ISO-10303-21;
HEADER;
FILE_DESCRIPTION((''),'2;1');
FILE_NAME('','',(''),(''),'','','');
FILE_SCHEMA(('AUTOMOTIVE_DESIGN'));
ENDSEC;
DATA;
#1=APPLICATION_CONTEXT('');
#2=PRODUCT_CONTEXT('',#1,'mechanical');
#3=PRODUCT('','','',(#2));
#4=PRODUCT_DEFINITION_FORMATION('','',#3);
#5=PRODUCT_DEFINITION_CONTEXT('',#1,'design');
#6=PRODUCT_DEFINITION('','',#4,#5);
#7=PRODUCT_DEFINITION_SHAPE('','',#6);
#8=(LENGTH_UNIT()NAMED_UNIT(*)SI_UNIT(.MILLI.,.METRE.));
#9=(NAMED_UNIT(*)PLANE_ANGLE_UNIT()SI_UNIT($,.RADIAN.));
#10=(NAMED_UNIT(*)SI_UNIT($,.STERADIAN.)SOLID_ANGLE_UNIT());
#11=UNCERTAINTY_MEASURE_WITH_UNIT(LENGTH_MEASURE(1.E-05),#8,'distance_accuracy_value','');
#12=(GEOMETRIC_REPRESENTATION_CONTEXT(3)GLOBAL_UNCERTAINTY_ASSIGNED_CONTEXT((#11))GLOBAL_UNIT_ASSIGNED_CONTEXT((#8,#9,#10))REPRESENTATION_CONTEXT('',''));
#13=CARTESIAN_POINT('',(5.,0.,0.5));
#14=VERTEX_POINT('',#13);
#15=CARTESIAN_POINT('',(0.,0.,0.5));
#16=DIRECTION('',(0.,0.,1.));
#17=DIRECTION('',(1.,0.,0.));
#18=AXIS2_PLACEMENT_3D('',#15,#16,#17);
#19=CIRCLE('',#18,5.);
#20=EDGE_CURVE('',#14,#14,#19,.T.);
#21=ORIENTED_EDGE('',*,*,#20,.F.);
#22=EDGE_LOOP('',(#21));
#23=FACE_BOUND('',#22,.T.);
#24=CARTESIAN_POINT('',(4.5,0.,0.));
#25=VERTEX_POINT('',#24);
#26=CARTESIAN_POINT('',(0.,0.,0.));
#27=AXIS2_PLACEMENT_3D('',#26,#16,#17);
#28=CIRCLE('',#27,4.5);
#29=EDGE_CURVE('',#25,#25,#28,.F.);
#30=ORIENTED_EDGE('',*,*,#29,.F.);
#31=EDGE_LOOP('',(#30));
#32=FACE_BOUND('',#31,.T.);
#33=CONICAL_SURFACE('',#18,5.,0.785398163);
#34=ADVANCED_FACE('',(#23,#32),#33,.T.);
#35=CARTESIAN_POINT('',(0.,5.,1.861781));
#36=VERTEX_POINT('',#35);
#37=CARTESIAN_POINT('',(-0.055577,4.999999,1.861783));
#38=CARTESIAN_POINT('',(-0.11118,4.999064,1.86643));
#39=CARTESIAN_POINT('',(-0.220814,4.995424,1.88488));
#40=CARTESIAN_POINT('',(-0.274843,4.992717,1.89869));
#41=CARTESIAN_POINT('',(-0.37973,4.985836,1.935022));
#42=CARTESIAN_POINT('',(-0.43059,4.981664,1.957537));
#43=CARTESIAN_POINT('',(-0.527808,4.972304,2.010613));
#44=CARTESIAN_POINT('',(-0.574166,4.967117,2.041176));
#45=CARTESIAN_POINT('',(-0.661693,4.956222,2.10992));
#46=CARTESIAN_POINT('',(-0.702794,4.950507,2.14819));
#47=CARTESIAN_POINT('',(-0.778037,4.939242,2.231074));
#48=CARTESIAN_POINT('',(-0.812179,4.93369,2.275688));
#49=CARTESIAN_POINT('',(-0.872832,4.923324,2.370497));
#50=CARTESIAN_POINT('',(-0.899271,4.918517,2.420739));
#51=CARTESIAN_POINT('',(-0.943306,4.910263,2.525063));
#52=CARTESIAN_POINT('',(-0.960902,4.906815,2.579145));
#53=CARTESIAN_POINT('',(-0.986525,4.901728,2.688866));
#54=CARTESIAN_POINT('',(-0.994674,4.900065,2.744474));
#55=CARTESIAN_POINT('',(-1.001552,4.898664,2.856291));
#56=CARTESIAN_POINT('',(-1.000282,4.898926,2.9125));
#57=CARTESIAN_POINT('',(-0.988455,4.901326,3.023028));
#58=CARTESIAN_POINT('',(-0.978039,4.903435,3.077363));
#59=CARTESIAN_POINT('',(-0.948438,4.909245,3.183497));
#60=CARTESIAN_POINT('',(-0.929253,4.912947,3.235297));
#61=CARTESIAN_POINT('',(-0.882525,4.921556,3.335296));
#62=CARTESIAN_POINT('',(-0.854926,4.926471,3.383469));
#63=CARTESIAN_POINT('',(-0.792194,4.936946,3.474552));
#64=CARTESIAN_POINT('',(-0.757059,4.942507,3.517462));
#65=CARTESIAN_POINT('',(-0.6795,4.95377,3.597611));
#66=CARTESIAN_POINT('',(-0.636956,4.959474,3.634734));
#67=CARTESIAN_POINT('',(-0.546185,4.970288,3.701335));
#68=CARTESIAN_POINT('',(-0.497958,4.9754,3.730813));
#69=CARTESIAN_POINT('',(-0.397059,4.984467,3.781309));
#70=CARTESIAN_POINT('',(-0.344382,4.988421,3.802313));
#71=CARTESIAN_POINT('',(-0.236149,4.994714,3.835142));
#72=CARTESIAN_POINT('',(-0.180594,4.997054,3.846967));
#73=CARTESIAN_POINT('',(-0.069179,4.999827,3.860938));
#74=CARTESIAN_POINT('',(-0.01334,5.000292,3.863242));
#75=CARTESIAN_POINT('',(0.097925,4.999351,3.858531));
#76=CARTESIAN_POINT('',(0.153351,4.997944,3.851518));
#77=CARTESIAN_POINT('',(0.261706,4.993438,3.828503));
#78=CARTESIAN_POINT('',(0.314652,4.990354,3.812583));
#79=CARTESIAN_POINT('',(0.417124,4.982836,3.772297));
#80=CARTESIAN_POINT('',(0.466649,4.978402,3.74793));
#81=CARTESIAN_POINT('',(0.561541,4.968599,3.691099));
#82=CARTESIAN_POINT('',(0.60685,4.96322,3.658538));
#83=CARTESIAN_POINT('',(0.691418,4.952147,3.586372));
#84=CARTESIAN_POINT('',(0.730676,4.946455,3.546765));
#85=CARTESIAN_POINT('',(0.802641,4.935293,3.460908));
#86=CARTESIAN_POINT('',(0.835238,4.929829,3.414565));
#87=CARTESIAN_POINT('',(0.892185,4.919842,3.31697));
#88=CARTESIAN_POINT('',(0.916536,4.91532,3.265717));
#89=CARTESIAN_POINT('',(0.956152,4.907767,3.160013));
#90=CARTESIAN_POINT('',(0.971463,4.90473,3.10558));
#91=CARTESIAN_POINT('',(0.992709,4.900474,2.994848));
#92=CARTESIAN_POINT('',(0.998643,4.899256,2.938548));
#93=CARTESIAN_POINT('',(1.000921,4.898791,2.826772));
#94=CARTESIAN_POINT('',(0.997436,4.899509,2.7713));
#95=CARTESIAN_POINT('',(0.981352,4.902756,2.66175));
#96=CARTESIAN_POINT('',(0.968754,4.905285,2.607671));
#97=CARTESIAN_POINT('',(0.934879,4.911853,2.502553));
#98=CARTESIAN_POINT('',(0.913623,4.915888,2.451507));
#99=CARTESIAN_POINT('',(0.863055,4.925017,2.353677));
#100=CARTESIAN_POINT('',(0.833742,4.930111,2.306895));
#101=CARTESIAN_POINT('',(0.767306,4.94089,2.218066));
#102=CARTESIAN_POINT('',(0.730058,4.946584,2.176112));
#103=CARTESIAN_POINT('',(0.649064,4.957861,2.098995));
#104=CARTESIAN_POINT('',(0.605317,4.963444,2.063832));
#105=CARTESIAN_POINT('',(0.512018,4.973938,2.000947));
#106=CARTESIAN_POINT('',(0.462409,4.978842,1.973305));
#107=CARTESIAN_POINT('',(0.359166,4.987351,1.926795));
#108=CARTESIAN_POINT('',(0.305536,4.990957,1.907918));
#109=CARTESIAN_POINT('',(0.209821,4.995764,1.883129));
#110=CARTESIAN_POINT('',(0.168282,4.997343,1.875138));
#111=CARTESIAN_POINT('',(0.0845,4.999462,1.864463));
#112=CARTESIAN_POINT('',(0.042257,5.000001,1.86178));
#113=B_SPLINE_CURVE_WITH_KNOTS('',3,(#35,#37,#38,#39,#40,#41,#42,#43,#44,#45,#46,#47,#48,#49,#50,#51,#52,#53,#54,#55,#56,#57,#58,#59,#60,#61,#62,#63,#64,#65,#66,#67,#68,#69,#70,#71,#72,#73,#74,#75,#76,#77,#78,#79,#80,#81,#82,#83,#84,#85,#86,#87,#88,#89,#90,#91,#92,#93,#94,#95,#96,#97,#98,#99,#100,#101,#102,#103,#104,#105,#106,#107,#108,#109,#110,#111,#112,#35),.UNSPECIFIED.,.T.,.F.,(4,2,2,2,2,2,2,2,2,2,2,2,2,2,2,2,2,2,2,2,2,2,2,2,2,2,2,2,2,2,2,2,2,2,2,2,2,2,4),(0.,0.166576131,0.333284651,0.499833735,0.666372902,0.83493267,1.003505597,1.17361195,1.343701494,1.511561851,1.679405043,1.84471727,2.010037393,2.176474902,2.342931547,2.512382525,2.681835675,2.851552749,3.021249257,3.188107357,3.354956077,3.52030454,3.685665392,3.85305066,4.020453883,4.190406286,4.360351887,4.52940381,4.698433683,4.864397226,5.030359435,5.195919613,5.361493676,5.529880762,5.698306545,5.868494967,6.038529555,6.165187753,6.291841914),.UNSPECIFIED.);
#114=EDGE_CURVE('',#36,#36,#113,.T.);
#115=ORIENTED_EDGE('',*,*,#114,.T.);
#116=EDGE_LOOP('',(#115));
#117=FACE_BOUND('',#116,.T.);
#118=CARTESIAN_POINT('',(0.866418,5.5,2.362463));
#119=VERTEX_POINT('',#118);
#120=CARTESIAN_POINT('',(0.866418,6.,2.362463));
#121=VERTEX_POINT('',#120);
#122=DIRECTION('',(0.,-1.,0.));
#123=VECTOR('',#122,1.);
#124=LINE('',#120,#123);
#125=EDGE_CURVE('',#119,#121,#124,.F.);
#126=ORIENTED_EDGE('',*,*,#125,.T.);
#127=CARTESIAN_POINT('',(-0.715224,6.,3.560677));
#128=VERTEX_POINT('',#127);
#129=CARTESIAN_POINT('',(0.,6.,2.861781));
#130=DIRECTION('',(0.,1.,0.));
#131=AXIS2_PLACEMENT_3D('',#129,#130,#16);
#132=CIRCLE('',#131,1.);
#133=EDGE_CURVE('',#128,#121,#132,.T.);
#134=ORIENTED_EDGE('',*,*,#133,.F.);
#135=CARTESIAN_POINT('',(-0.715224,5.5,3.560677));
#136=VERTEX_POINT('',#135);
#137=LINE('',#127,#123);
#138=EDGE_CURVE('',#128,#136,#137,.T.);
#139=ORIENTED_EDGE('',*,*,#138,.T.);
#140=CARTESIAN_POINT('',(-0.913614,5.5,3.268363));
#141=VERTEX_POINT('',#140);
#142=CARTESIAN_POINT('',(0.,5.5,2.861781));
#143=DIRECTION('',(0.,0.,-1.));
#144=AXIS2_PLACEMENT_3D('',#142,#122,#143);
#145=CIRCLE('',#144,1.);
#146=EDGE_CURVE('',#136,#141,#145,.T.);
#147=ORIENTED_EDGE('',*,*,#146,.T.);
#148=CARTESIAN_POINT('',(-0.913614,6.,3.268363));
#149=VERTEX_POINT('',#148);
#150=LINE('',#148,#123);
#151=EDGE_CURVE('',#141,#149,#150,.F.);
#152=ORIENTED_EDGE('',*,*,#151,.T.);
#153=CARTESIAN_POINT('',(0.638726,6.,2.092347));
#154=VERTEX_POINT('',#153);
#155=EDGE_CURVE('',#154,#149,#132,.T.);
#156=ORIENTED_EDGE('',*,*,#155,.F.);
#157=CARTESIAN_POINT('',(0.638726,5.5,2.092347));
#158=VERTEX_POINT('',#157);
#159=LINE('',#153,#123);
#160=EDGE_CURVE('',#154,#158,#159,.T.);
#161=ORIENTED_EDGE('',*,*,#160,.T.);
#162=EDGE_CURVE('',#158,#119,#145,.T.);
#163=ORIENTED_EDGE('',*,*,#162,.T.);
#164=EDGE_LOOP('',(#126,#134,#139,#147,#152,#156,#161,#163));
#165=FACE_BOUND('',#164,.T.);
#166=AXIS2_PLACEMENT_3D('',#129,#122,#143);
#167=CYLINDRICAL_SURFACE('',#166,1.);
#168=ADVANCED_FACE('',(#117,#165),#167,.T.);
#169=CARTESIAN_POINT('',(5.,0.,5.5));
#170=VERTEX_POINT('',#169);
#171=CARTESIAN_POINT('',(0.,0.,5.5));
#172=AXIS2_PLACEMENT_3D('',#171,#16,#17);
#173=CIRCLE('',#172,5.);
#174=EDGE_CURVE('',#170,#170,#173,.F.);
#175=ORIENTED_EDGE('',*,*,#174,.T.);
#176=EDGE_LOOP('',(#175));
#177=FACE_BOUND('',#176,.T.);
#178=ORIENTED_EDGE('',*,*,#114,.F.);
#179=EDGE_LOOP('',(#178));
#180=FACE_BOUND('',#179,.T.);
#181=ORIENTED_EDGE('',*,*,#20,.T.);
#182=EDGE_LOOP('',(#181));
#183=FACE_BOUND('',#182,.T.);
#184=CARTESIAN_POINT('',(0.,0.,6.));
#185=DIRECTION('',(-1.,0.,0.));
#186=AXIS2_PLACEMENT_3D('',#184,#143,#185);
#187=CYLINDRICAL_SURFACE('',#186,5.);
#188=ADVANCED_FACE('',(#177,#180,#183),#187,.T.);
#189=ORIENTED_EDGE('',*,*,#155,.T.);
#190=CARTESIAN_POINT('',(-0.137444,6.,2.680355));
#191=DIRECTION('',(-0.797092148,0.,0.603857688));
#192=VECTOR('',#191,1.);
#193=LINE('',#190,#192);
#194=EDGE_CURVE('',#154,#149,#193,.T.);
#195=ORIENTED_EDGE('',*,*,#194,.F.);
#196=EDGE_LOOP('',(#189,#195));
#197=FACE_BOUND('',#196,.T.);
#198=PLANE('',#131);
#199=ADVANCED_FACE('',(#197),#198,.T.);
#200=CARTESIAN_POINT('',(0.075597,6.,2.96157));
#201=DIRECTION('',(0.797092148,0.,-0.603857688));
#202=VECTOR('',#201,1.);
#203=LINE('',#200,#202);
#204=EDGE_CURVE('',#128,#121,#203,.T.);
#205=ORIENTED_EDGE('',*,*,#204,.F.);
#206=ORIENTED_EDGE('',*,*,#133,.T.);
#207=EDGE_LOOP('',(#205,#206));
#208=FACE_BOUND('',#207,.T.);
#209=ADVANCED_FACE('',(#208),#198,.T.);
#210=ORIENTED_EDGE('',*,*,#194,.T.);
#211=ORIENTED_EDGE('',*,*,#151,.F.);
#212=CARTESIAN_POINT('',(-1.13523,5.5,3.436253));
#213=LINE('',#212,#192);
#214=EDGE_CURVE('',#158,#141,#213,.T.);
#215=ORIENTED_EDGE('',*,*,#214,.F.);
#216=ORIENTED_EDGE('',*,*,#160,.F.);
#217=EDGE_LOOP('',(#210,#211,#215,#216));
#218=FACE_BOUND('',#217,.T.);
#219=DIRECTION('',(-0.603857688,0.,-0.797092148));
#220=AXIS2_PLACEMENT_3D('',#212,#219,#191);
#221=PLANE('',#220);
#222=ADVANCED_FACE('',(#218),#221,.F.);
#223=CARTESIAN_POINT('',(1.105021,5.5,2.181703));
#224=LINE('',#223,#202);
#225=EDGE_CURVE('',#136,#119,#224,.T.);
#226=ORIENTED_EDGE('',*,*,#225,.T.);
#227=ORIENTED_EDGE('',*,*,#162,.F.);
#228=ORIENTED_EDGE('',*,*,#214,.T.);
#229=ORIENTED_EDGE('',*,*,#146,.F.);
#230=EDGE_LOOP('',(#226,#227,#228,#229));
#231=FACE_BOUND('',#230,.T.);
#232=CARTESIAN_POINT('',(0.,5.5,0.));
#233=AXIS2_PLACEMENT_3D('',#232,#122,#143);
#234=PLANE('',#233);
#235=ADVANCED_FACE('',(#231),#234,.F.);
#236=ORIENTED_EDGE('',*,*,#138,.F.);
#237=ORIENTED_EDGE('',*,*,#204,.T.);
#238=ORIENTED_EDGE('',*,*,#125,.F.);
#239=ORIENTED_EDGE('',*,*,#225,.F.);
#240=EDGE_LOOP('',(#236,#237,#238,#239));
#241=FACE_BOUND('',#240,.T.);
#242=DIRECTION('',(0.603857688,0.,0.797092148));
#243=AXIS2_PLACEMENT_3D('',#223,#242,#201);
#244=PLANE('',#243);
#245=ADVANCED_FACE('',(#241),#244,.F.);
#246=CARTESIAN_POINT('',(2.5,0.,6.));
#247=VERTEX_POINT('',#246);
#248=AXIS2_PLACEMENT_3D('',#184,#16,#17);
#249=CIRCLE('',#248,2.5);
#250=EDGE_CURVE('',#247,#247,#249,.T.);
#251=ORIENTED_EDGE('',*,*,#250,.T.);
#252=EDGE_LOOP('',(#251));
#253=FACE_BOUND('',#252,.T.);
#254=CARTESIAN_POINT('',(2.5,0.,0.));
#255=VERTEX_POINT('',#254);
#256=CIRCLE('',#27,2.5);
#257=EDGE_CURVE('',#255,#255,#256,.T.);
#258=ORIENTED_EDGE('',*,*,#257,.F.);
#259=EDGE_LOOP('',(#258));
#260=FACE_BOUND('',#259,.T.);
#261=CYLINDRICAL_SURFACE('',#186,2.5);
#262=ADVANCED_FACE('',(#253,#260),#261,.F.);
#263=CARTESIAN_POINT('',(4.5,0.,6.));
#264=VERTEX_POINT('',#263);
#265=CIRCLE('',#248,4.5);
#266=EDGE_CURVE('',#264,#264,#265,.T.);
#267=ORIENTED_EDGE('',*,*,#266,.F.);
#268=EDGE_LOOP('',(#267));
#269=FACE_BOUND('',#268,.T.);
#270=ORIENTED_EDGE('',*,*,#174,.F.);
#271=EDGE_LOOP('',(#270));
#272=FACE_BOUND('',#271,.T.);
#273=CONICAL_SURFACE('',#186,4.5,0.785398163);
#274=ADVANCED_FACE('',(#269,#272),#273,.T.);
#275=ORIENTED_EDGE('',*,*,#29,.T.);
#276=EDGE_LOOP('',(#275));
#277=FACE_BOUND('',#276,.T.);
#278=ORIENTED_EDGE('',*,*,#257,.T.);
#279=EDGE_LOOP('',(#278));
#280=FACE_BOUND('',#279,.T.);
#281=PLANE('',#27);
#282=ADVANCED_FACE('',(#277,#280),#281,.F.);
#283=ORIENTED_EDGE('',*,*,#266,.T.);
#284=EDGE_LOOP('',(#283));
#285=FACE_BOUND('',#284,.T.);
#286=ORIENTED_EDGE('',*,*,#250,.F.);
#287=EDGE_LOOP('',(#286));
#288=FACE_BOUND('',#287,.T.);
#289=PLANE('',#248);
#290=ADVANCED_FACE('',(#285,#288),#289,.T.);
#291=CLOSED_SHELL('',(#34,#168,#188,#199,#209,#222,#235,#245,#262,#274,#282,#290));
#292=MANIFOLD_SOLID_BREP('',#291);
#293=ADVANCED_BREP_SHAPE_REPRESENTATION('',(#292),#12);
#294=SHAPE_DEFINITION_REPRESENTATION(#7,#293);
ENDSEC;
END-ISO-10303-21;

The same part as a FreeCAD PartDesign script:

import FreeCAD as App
import Part
import Sketcher
from FreeCAD import Vector


def edges_at(feature, points):
    """Names of the edges that pass closest to the given points."""
    edges = feature.Shape.Edges
    near = lambda p: min(range(len(edges)), key=lambda i: edges[i].distToShape(Part.Vertex(*p))[0])
    return sorted({f"Edge{near(p) + 1}" for p in points})


def add_polygon(sketch, points):
    """Adds a closed chain of lines whose ends are joined by coincident constraints."""
    first, n = sketch.GeometryCount, len(points)
    for a, b in zip(points, points[1:] + points[:1]):
        sketch.addGeometry(Part.LineSegment(App.Vector(*a, 0), App.Vector(*b, 0)), False)
    for i in range(n):
        sketch.addConstraint(Sketcher.Constraint("Coincident", first + i, 2, first + (i + 1) % n, 1))

doc = App.newDocument("Part")
params = doc.addObject("Spreadsheet::Sheet", "Params")
for row, (alias, value) in enumerate([
    ("sketch1_diameter", "10 mm"),
    ("sketch1_diameter2", "5 mm"),
    ("pad1_length", "6 mm"),
    ("chamfer_size", "0.5 mm"),
    ("sketch2_diameter", "2 mm"),
    ("pad2_length", "2 mm"),
    ("pocket1_length", "0.5 mm"),
    ("chamfer2_size", "0.5 mm"),
], start=1):
    params.set(f"A{row}", alias)
    params.set(f"B{row}", "=" + value)
    params.setAlias(f"B{row}", alias)

body = doc.addObject("PartDesign::Body", "Body")

sketch1 = body.newObject("Sketcher::SketchObject", "Sketch")
sketch1.AttachmentSupport = (doc.getObject("XY_Plane"), [""])
sketch1.MapMode = "FlatFace"
sketch1.addGeometry([
    Part.Circle(Vector(0, 0, 0), Vector(0, 0, 1), 5),
    Part.Circle(Vector(0, 0, 0), Vector(0, 0, 1), 2.5),
], False)
sketch1.addConstraint([
    Sketcher.Constraint("Coincident", 0, 3, -1, 1),
    Sketcher.Constraint("Coincident", 1, 3, -1, 1),
    Sketcher.Constraint("Diameter", 0, 10.0),
    Sketcher.Constraint("Diameter", 1, 5.0),
])
sketch1.setExpression("Constraints[2]", "Params.sketch1_diameter")
sketch1.setExpression("Constraints[3]", "Params.sketch1_diameter2")
pad1 = body.newObject("PartDesign::Pad", "Pad")
pad1.Profile = sketch1
pad1.setExpression("Length", "Params.pad1_length")
doc.recompute()

chamfer = body.newObject("PartDesign::Chamfer", "Chamfer")
chamfer.Base = (pad1, edges_at(pad1, [(-5, 0, 6)]))
chamfer.setExpression("Size", "Params.chamfer_size")

sketch2 = body.newObject("Sketcher::SketchObject", "Sketch001")
sketch2.AttachmentSupport = (doc.getObject("XZ_Plane"), [""])
sketch2.MapMode = "FlatFace"
sketch2.AttachmentOffset = App.Placement(Vector(0, 0, -4), App.Rotation())
sketch2.addGeometry(Part.Circle(Vector(0, 2.9, 0), Vector(0, 0, 1), 1), False)
sketch2.addConstraint([
    Sketcher.Constraint("PointOnObject", 0, 3, -2),
    Sketcher.Constraint("Diameter", 0, 2.0),
    Sketcher.Constraint("DistanceY", -1, 1, 0, 3, 2.861781),
])
sketch2.setExpression("Constraints[1]", "Params.sketch2_diameter")
pad2 = body.newObject("PartDesign::Pad", "Pad001")
pad2.Profile = sketch2
pad2.setExpression("Length", "Params.pad2_length")
pad2.Reversed = True

sketch3 = body.newObject("Sketcher::SketchObject", "Sketch002")
sketch3.AttachmentSupport = (doc.getObject("XZ_Plane"), [""])
sketch3.MapMode = "FlatFace"
sketch3.AttachmentOffset = App.Placement(Vector(0, 0, -6), App.Rotation())
add_polygon(sketch3, [(0.89, 1.9), (-1.14, 3.44), (-0.92, 3.72), (1.11, 2.18)])
sketch3.addConstraint([
    Sketcher.Constraint("Perpendicular", 0, 1),
    Sketcher.Constraint("Perpendicular", 1, 2),
    Sketcher.Constraint("Perpendicular", 2, 3),
    Sketcher.Constraint("Distance", 1, 0.352801),
    Sketcher.Constraint("DistanceX", 0, 2, -1, 1, 1.13523),
    Sketcher.Constraint("DistanceX", 1, 2, -1, 1, 0.922188),
    Sketcher.Constraint("DistanceX", -1, 1, 2, 2, 1.105021),
    Sketcher.Constraint("DistanceY", -1, 1, 3, 2, 1.900489),
])
pocket1 = body.newObject("PartDesign::Pocket", "Pocket")
pocket1.Profile = sketch3
pocket1.setExpression("Length", "Params.pocket1_length")
pocket1.Reversed = True
doc.recompute()

chamfer2 = body.newObject("PartDesign::Chamfer", "Chamfer001")
chamfer2.Base = (pocket1, edges_at(pocket1, [(-5, 0, 0)]))
chamfer2.setExpression("Size", "Params.chamfer2_size")

doc.recompute()
